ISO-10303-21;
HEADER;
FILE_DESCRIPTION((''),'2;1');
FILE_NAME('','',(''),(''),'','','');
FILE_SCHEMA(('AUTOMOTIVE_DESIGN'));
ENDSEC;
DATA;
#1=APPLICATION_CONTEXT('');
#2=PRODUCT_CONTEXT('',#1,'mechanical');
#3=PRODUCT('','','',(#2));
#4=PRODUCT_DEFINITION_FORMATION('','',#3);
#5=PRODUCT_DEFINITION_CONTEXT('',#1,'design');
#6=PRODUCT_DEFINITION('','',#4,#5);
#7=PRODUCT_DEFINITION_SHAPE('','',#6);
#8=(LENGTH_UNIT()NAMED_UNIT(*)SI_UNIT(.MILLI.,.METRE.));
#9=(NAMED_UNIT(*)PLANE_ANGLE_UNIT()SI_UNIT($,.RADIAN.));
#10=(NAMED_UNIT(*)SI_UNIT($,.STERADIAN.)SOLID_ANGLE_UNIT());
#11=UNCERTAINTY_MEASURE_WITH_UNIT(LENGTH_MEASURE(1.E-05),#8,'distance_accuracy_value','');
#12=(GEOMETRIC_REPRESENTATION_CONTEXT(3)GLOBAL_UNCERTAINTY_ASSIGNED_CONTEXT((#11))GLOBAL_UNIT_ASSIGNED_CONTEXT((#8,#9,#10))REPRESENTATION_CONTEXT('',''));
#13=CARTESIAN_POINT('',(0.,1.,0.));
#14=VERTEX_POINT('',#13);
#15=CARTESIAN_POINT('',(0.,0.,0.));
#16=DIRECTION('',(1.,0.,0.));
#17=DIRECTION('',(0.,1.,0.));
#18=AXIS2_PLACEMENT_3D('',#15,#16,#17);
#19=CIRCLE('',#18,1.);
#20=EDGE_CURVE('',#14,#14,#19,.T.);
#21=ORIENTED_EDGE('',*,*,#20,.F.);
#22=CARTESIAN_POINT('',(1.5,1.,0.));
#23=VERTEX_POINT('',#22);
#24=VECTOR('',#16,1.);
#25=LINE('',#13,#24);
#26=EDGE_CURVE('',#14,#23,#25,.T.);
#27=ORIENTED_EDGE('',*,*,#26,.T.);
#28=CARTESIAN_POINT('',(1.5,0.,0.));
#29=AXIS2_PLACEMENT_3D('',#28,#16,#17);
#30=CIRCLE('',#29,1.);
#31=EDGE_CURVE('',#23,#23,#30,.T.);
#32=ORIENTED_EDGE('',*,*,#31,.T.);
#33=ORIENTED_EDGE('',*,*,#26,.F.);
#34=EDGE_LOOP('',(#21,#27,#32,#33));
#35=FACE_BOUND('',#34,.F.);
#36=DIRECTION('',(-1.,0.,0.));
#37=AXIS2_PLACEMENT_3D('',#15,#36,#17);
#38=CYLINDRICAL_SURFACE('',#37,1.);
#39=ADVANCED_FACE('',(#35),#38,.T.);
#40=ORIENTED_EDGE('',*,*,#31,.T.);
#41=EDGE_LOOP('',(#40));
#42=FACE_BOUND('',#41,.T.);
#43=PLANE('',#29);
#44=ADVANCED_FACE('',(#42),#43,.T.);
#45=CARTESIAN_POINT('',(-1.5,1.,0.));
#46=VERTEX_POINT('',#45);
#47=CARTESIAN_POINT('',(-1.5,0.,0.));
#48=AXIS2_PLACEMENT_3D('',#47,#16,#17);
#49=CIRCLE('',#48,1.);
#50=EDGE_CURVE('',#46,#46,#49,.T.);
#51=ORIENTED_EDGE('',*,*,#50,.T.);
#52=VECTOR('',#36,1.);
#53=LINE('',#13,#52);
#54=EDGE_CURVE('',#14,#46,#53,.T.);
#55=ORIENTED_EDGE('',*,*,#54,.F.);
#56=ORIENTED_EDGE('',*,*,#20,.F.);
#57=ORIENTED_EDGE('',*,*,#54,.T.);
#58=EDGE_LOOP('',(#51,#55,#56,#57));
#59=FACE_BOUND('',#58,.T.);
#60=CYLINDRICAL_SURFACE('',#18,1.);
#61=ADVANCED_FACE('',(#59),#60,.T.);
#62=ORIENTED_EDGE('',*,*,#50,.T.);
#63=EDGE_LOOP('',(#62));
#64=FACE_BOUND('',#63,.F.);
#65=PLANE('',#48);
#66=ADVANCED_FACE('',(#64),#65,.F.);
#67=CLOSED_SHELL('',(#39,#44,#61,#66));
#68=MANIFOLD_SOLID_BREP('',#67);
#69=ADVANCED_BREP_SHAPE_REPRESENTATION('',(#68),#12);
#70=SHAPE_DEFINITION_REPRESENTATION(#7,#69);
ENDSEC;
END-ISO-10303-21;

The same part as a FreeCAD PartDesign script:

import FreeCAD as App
import Part
import Sketcher
Q = App.Units.Quantity

doc = App.newDocument("Part")
body = doc.addObject("PartDesign::Body", "Body")

# Sketch on YZ plane
sketch1 = body.newObject("Sketcher::SketchObject", "Sketch")
sketch1.AttachmentSupport = (doc.getObject("YZ_Plane"), [""])
sketch1.MapMode = "FlatFace"
sketch1.addGeometry(Part.Circle(App.Vector(0, 0, 0), App.Vector(0, 0, 1), 1), False)
sketch1.addConstraint([
    Sketcher.Constraint("Coincident", 0, 3, -1, 1),
    Sketcher.Constraint("Diameter", 0, Q("2 mm")),
])
pad1 = body.newObject("PartDesign::Pad", "Pad")
pad1.Profile = sketch1
pad1.Length = 3
pad1.Midplane = True

doc.recompute()
